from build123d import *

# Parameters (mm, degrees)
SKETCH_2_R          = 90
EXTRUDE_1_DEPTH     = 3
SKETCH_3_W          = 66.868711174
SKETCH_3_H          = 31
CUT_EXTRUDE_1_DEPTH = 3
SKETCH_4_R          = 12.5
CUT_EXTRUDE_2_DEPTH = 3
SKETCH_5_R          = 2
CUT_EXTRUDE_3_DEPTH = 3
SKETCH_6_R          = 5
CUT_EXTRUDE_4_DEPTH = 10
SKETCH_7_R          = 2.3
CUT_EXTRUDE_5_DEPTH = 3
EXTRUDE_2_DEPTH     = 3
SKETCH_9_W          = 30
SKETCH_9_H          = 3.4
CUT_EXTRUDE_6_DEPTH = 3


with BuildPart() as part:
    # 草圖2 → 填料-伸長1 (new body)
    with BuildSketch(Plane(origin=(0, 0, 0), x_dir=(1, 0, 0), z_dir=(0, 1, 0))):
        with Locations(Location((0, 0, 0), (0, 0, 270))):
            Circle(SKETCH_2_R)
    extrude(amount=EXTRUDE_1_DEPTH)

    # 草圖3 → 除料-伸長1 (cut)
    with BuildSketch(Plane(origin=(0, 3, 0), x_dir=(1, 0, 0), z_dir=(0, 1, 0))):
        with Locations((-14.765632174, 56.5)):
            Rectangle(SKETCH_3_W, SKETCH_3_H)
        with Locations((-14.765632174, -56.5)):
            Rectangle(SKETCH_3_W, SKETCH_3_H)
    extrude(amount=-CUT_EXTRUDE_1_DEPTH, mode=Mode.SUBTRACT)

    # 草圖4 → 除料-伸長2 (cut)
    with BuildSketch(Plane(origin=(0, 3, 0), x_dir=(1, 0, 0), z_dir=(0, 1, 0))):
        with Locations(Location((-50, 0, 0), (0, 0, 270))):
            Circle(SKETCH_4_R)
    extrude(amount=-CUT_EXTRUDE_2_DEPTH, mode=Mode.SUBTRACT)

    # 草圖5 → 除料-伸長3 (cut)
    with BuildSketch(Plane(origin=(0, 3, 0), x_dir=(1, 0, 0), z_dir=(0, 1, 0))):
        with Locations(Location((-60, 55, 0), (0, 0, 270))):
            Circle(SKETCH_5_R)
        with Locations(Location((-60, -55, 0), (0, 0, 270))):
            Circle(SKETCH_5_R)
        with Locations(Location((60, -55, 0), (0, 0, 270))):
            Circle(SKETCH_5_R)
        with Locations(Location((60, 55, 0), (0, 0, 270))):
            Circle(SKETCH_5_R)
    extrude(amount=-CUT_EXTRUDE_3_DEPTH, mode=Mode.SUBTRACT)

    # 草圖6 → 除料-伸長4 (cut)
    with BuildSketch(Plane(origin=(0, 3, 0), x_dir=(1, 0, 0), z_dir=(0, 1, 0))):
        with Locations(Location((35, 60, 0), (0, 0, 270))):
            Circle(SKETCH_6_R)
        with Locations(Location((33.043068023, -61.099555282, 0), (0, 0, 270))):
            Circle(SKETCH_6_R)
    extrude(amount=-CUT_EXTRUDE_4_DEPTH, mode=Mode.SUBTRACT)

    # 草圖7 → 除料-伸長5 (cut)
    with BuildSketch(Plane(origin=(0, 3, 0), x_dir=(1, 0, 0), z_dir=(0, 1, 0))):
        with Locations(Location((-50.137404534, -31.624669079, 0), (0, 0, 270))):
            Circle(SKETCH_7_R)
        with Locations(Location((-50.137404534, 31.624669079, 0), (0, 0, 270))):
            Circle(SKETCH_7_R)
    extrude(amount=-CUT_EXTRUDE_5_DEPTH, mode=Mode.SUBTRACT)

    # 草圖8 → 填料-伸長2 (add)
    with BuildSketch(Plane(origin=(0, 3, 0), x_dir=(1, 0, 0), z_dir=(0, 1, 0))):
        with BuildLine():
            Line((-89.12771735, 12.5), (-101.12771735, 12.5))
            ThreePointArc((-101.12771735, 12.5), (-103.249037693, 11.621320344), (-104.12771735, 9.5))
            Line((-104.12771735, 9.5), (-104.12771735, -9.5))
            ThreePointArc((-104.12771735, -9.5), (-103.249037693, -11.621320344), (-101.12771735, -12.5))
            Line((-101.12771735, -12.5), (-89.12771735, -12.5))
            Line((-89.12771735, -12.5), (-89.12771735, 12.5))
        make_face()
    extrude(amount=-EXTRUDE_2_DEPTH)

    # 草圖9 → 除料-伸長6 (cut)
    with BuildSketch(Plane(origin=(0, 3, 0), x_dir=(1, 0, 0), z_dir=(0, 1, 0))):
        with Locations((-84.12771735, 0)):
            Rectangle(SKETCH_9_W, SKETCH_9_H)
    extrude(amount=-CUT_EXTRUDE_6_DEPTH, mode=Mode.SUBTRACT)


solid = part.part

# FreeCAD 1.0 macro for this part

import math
import FreeCAD as App
import Part
import Sketcher
from FreeCAD import Vector


def add_polygon(sketch, points):
    """Adds a closed chain of lines whose ends are joined by coincident constraints."""
    first, n = sketch.GeometryCount, len(points)
    for a, b in zip(points, points[1:] + points[:1]):
        sketch.addGeometry(Part.LineSegment(App.Vector(*a, 0), App.Vector(*b, 0)), False)
    for i in range(n):
        sketch.addConstraint(Sketcher.Constraint("Coincident", first + i, 2, first + (i + 1) % n, 1))

doc = App.newDocument("Part")
body = doc.addObject("PartDesign::Body", "Body")

# Sketch on XZ plane
sketch1 = body.newObject("Sketcher::SketchObject", "Sketch")
sketch1.AttachmentSupport = (doc.getObject("XZ_Plane"), [""])
sketch1.MapMode = "FlatFace"
sketch1.addGeometry(Part.Circle(Vector(0, 0, 0), Vector(0, 0, 1), 90), False)
sketch1.addConstraint([
    Sketcher.Constraint("Coincident", 0, 3, -1, 1),
    Sketcher.Constraint("Diameter", 0, 180.0),
])
pad1 = body.newObject("PartDesign::Pad", "Pad")
pad1.Profile = sketch1
pad1.Length = 3
pad1.Reversed = True

# Sketch on XZ plane
sketch2 = body.newObject("Sketcher::SketchObject", "Sketch001")
sketch2.AttachmentSupport = (doc.getObject("XZ_Plane"), [""])
sketch2.MapMode = "FlatFace"
sketch2.AttachmentOffset = App.Placement(Vector(0, 0, -3), App.Rotation())
add_polygon(sketch2, [(-48.199988, -72), (-48.199988, -41), (18.668723, -41), (18.668723, -72)])  # lines 0-3
add_polygon(sketch2, [(-48.199988, 41), (-48.199988, 72), (18.668723, 72), (18.668723, 41)])  # lines 4-7
sketch2.addConstraint([
    Sketcher.Constraint("Vertical", 0),
    Sketcher.Constraint("Horizontal", 1),
    Sketcher.Constraint("Vertical", 2),
    Sketcher.Constraint("Horizontal", 3),
    Sketcher.Constraint("Vertical", 4),
    Sketcher.Constraint("Horizontal", 5),
    Sketcher.Constraint("Vertical", 6),
    Sketcher.Constraint("Horizontal", 7),
    Sketcher.Constraint("Symmetric", 3, 2, 4, 2, -1),
    Sketcher.Constraint("Symmetric", 1, 2, 6, 2, -1),
    Sketcher.Constraint("DistanceY", 0, 1, 0, 2, 31.0),
    Sketcher.Constraint("DistanceY", 0, 2, -1, 1, 41.0),
    Sketcher.Constraint("DistanceX", 1, 1, 1, 2, 66.868711),
    Sketcher.Constraint("DistanceX", 0, 2, -1, 1, 48.199988),
])
pocket1 = body.newObject("PartDesign::Pocket", "Pocket")
pocket1.Profile = sketch2
pocket1.Length = 3
pocket1.Reversed = True

# Sketch on XZ plane
sketch3 = body.newObject("Sketcher::SketchObject", "Sketch002")
sketch3.AttachmentSupport = (doc.getObject("XZ_Plane"), [""])
sketch3.MapMode = "FlatFace"
sketch3.AttachmentOffset = App.Placement(Vector(0, 0, -3), App.Rotation())
sketch3.addGeometry(Part.Circle(Vector(-50, 0, 0), Vector(0, 0, 1), 12.5), False)
sketch3.addConstraint([
    Sketcher.Constraint("PointOnObject", 0, 3, -1),
    Sketcher.Constraint("Diameter", 0, 25.0),
    Sketcher.Constraint("DistanceX", 0, 3, -1, 1, 50.0),
])
pocket2 = body.newObject("PartDesign::Pocket", "Pocket001")
pocket2.Profile = sketch3
pocket2.Length = 3
pocket2.Reversed = True

# Sketch on XZ plane
sketch4 = body.newObject("Sketcher::SketchObject", "Sketch003")
sketch4.AttachmentSupport = (doc.getObject("XZ_Plane"), [""])
sketch4.MapMode = "FlatFace"
sketch4.AttachmentOffset = App.Placement(Vector(0, 0, -3), App.Rotation())
sketch4.addGeometry([
    Part.Circle(Vector(-60, -55, 0), Vector(0, 0, 1), 2),
    Part.Circle(Vector(-60, 55, 0), Vector(0, 0, 1), 2),
    Part.Circle(Vector(60, 55, 0), Vector(0, 0, 1), 2),
    Part.Circle(Vector(60, -55, 0), Vector(0, 0, 1), 2),
], False)
sketch4.addConstraint([
    Sketcher.Constraint("Equal", 0, 1),
    Sketcher.Constraint("Equal", 1, 2),
    Sketcher.Constraint("Equal", 2, 3),
    Sketcher.Constraint("Symmetric", 0, 3, 2, 3, -1, 1),
    Sketcher.Constraint("Symmetric", 1, 3, 3, 3, -1, 1),
    Sketcher.Constraint("Symmetric", 1, 3, 2, 3, -2),
    Sketcher.Constraint("Diameter", 0, 4.0),
    Sketcher.Constraint("DistanceX", 0, 3, -1, 1, 60.0),
    Sketcher.Constraint("DistanceY", 0, 3, -1, 1, 55.0),
])
pocket3 = body.newObject("PartDesign::Pocket", "Pocket002")
pocket3.Profile = sketch4
pocket3.Length = 3
pocket3.Reversed = True

# Sketch on XZ plane
sketch5 = body.newObject("Sketcher::SketchObject", "Sketch004")
sketch5.AttachmentSupport = (doc.getObject("XZ_Plane"), [""])
sketch5.MapMode = "FlatFace"
sketch5.AttachmentOffset = App.Placement(Vector(0, 0, -3), App.Rotation())
sketch5.addGeometry([
    Part.Circle(Vector(35, -60, 0), Vector(0, 0, 1), 5),
    Part.Circle(Vector(33.043068, 61.099555, 0), Vector(0, 0, 1), 5),
], False)
sketch5.addConstraint([
    Sketcher.Constraint("Equal", 0, 1),
    Sketcher.Constraint("Diameter", 0, 10.0),
    Sketcher.Constraint("DistanceX", -1, 1, 0, 3, 35.0),
    Sketcher.Constraint("DistanceY", 0, 3, -1, 1, 60.0),
    Sketcher.Constraint("DistanceX", -1, 1, 1, 3, 33.043068),
    Sketcher.Constraint("DistanceY", -1, 1, 1, 3, 61.099555),
])
pocket4 = body.newObject("PartDesign::Pocket", "Pocket003")
pocket4.Profile = sketch5
pocket4.Length = 10
pocket4.Reversed = True

# Sketch on XZ plane
sketch6 = body.newObject("Sketcher::SketchObject", "Sketch005")
sketch6.AttachmentSupport = (doc.getObject("XZ_Plane"), [""])
sketch6.MapMode = "FlatFace"
sketch6.AttachmentOffset = App.Placement(Vector(0, 0, -3), App.Rotation())
sketch6.addGeometry([
    Part.Circle(Vector(-50.137405, 31.624669, 0), Vector(0, 0, 1), 2.3),
    Part.Circle(Vector(-50.137405, -31.624669, 0), Vector(0, 0, 1), 2.3),
], False)
sketch6.addConstraint([
    Sketcher.Constraint("Equal", 0, 1),
    Sketcher.Constraint("Symmetric", 0, 3, 1, 3, -1),
    Sketcher.Constraint("Diameter", 0, 4.6),
    Sketcher.Constraint("DistanceY", -1, 1, 0, 3, 31.624669),
    Sketcher.Constraint("DistanceX", 0, 3, -1, 1, 50.137405),
])
pocket5 = body.newObject("PartDesign::Pocket", "Pocket004")
pocket5.Profile = sketch6
pocket5.Length = 3
pocket5.Reversed = True

# Sketch on XZ plane
sketch7 = body.newObject("Sketcher::SketchObject", "Sketch006")
sketch7.AttachmentSupport = (doc.getObject("XZ_Plane"), [""])
sketch7.MapMode = "FlatFace"
sketch7.AttachmentOffset = App.Placement(Vector(0, 0, -3), App.Rotation())
sketch7.addGeometry([
    Part.LineSegment(Vector(-89.127717, -12.5, 0), Vector(-101.127717, -12.5, 0)),  # 0
    Part.ArcOfCircle(Part.Circle(Vector(-101.127717, -9.5, 0), Vector(0, 0, 1), 3), math.radians(180), math.radians(270)),  # 1
    Part.LineSegment(Vector(-104.127717, -9.5, 0), Vector(-104.127717, 9.5, 0)),  # 2
    Part.ArcOfCircle(Part.Circle(Vector(-101.127717, 9.5, 0), Vector(0, 0, 1), 3), math.radians(90), math.radians(180)),  # 3
    Part.LineSegment(Vector(-101.127717, 12.5, 0), Vector(-89.127717, 12.5, 0)),  # 4
    Part.LineSegment(Vector(-89.127717, 12.5, 0), Vector(-89.127717, -12.5, 0)),  # 5
], False)
sketch7.addConstraint([
    Sketcher.Constraint("Tangent", 0, 2, 1, 2),
    Sketcher.Constraint("Tangent", 1, 1, 2, 1),
    Sketcher.Constraint("Tangent", 2, 2, 3, 2),
    Sketcher.Constraint("Tangent", 3, 1, 4, 1),
    Sketcher.Constraint("Coincident", 4, 2, 5, 1),
    Sketcher.Constraint("Coincident", 5, 2, 0, 1),
    Sketcher.Constraint("Horizontal", 0),
    Sketcher.Constraint("Vertical", 2),
    Sketcher.Constraint("Horizontal", 4),
    Sketcher.Constraint("Vertical", 5),
    Sketcher.Constraint("Equal", 1, 3),
    Sketcher.Constraint("Radius", 1, 3.0),
    Sketcher.Constraint("DistanceX", 0, 2, 0, 1, 12.0),
    Sketcher.Constraint("DistanceY", 2, 1, 2, 2, 19.0),
    Sketcher.Constraint("DistanceY", 1, 3, -1, 1, 9.5),
    Sketcher.Constraint("DistanceX", 1, 3, -1, 1, 101.127717),
])
pad2 = body.newObject("PartDesign::Pad", "Pad001")
pad2.Profile = sketch7
pad2.Length = 3

# Sketch on XZ plane
sketch8 = body.newObject("Sketcher::SketchObject", "Sketch007")
sketch8.AttachmentSupport = (doc.getObject("XZ_Plane"), [""])
sketch8.MapMode = "FlatFace"
sketch8.AttachmentOffset = App.Placement(Vector(0, 0, -3), App.Rotation())
add_polygon(sketch8, [(-99.127717, -1.7), (-99.127717, 1.7), (-69.127717, 1.7), (-69.127717, -1.7)])  # lines 0-3
sketch8.addConstraint([
    Sketcher.Constraint("Vertical", 0),
    Sketcher.Constraint("Horizontal", 1),
    Sketcher.Constraint("Vertical", 2),
    Sketcher.Constraint("Horizontal", 3),
    Sketcher.Constraint("DistanceX", 1, 1, 1, 2, 30.0),
    Sketcher.Constraint("DistanceY", 0, 1, 0, 2, 3.4),
    Sketcher.Constraint("DistanceY", -1, 1, 0, 2, 1.7),
    Sketcher.Constraint("DistanceX", 0, 2, -1, 1, 99.127717),
])
pocket6 = body.newObject("PartDesign::Pocket", "Pocket005")
pocket6.Profile = sketch8
pocket6.Length = 3
pocket6.Reversed = True

doc.recompute()
